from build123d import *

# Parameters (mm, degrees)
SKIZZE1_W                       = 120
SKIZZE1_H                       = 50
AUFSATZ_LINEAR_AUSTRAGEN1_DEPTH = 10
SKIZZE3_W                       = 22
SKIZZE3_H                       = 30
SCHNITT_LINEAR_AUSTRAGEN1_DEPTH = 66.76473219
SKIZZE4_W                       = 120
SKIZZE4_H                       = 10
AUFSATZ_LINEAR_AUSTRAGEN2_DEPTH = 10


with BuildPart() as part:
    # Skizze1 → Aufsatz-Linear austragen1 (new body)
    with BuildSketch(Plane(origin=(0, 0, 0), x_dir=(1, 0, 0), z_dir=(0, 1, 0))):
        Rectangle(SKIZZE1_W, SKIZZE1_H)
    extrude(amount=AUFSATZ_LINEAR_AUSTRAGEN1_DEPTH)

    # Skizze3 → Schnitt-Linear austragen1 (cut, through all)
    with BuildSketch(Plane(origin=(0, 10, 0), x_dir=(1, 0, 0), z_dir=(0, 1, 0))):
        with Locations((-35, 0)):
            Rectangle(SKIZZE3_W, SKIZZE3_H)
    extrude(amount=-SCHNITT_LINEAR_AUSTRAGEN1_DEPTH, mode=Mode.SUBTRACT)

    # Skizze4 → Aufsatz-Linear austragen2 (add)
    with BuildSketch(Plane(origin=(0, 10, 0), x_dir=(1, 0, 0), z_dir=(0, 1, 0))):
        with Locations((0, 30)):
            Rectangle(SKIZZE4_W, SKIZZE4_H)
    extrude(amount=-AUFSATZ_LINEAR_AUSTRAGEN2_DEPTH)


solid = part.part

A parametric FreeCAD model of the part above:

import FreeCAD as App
import Part
import Sketcher

doc = App.newDocument("Part")
body = doc.addObject("PartDesign::Body", "Body")

# Sketch on XZ plane
sketch1 = body.newObject("Sketcher::SketchObject", "Sketch")
sketch1.AttachmentSupport = (doc.getObject("XZ_Plane"), [""])
sketch1.MapMode = "FlatFace"
sketch1.addGeometry([
    Part.LineSegment(App.Vector(-60, -25, 0), App.Vector(-60, 25, 0)),
    Part.LineSegment(App.Vector(-60, 25, 0), App.Vector(60, 25, 0)),
    Part.LineSegment(App.Vector(60, 25, 0), App.Vector(60, -25, 0)),
    Part.LineSegment(App.Vector(60, -25, 0), App.Vector(-60, -25, 0)),
], False)
sketch1.addConstraint([
    Sketcher.Constraint("Coincident", 0, 2, 1, 1),
    Sketcher.Constraint("Coincident", 1, 2, 2, 1),
    Sketcher.Constraint("Coincident", 2, 2, 3, 1),
    Sketcher.Constraint("Coincident", 3, 2, 0, 1),
    Sketcher.Constraint("Vertical", 0),
    Sketcher.Constraint("Horizontal", 1),
    Sketcher.Constraint("Vertical", 2),
    Sketcher.Constraint("Horizontal", 3),
    Sketcher.Constraint("Symmetric", 0, 2, 2, 2, -1, 1),
    Sketcher.Constraint("DistanceX", 1, 1, 1, 2, 120.0),
    Sketcher.Constraint("DistanceY", 0, 1, 0, 2, 50.0),
])
pad1 = body.newObject("PartDesign::Pad", "Pad")
pad1.Profile = sketch1
pad1.Length = 10
pad1.Reversed = True

# Sketch on XZ plane
sketch2 = body.newObject("Sketcher::SketchObject", "Sketch001")
sketch2.AttachmentSupport = (doc.getObject("XZ_Plane"), [""])
sketch2.MapMode = "FlatFace"
sketch2.AttachmentOffset = App.Placement(App.Vector(0, 0, -10), App.Rotation())
sketch2.addGeometry([
    Part.LineSegment(App.Vector(-46, -15, 0), App.Vector(-46, 15, 0)),
    Part.LineSegment(App.Vector(-46, 15, 0), App.Vector(-24, 15, 0)),
    Part.LineSegment(App.Vector(-24, 15, 0), App.Vector(-24, -15, 0)),
    Part.LineSegment(App.Vector(-24, -15, 0), App.Vector(-46, -15, 0)),
], False)
sketch2.addConstraint([
    Sketcher.Constraint("Coincident", 0, 2, 1, 1),
    Sketcher.Constraint("Coincident", 1, 2, 2, 1),
    Sketcher.Constraint("Coincident", 2, 2, 3, 1),
    Sketcher.Constraint("Coincident", 3, 2, 0, 1),
    Sketcher.Constraint("Vertical", 0),
    Sketcher.Constraint("Horizontal", 1),
    Sketcher.Constraint("Vertical", 2),
    Sketcher.Constraint("Horizontal", 3),
    Sketcher.Constraint("DistanceX", 1, 1, 1, 2, 22.0),
    Sketcher.Constraint("DistanceY", 0, 1, 0, 2, 30.0),
    Sketcher.Constraint("DistanceX", 0, 2, -1, 1, 46.0),
    Sketcher.Constraint("DistanceY", -1, 1, 0, 2, 15.0),
])
pocket1 = body.newObject("PartDesign::Pocket", "Pocket")
pocket1.Profile = sketch2
pocket1.Type = "ThroughAll"
pocket1.Reversed = True

# Sketch on XZ plane
sketch3 = body.newObject("Sketcher::SketchObject", "Sketch002")
sketch3.AttachmentSupport = (doc.getObject("XZ_Plane"), [""])
sketch3.MapMode = "FlatFace"
sketch3.AttachmentOffset = App.Placement(App.Vector(0, 0, -10), App.Rotation())
sketch3.addGeometry([
    Part.LineSegment(App.Vector(-60, -35, 0), App.Vector(-60, -25, 0)),
    Part.LineSegment(App.Vector(-60, -25, 0), App.Vector(60, -25, 0)),
    Part.LineSegment(App.Vector(60, -25, 0), App.Vector(60, -35, 0)),
    Part.LineSegment(App.Vector(60, -35, 0), App.Vector(-60, -35, 0)),
], False)
sketch3.addConstraint([
    Sketcher.Constraint("Coincident", 0, 2, 1, 1),
    Sketcher.Constraint("Coincident", 1, 2, 2, 1),
    Sketcher.Constraint("Coincident", 2, 2, 3, 1),
    Sketcher.Constraint("Coincident", 3, 2, 0, 1),
    Sketcher.Constraint("Vertical", 0),
    Sketcher.Constraint("Horizontal", 1),
    Sketcher.Constraint("Vertical", 2),
    Sketcher.Constraint("Horizontal", 3),
    Sketcher.Constraint("DistanceX", 1, 1, 1, 2, 120.0),
    Sketcher.Constraint("DistanceY", 0, 1, 0, 2, 10.0),
    Sketcher.Constraint("DistanceX", 0, 2, -1, 1, 60.0),
    Sketcher.Constraint("DistanceY", 0, 2, -1, 1, 25.0),
])
pad2 = body.newObject("PartDesign::Pad", "Pad001")
pad2.Profile = sketch3
pad2.Length = 10

doc.recompute()
